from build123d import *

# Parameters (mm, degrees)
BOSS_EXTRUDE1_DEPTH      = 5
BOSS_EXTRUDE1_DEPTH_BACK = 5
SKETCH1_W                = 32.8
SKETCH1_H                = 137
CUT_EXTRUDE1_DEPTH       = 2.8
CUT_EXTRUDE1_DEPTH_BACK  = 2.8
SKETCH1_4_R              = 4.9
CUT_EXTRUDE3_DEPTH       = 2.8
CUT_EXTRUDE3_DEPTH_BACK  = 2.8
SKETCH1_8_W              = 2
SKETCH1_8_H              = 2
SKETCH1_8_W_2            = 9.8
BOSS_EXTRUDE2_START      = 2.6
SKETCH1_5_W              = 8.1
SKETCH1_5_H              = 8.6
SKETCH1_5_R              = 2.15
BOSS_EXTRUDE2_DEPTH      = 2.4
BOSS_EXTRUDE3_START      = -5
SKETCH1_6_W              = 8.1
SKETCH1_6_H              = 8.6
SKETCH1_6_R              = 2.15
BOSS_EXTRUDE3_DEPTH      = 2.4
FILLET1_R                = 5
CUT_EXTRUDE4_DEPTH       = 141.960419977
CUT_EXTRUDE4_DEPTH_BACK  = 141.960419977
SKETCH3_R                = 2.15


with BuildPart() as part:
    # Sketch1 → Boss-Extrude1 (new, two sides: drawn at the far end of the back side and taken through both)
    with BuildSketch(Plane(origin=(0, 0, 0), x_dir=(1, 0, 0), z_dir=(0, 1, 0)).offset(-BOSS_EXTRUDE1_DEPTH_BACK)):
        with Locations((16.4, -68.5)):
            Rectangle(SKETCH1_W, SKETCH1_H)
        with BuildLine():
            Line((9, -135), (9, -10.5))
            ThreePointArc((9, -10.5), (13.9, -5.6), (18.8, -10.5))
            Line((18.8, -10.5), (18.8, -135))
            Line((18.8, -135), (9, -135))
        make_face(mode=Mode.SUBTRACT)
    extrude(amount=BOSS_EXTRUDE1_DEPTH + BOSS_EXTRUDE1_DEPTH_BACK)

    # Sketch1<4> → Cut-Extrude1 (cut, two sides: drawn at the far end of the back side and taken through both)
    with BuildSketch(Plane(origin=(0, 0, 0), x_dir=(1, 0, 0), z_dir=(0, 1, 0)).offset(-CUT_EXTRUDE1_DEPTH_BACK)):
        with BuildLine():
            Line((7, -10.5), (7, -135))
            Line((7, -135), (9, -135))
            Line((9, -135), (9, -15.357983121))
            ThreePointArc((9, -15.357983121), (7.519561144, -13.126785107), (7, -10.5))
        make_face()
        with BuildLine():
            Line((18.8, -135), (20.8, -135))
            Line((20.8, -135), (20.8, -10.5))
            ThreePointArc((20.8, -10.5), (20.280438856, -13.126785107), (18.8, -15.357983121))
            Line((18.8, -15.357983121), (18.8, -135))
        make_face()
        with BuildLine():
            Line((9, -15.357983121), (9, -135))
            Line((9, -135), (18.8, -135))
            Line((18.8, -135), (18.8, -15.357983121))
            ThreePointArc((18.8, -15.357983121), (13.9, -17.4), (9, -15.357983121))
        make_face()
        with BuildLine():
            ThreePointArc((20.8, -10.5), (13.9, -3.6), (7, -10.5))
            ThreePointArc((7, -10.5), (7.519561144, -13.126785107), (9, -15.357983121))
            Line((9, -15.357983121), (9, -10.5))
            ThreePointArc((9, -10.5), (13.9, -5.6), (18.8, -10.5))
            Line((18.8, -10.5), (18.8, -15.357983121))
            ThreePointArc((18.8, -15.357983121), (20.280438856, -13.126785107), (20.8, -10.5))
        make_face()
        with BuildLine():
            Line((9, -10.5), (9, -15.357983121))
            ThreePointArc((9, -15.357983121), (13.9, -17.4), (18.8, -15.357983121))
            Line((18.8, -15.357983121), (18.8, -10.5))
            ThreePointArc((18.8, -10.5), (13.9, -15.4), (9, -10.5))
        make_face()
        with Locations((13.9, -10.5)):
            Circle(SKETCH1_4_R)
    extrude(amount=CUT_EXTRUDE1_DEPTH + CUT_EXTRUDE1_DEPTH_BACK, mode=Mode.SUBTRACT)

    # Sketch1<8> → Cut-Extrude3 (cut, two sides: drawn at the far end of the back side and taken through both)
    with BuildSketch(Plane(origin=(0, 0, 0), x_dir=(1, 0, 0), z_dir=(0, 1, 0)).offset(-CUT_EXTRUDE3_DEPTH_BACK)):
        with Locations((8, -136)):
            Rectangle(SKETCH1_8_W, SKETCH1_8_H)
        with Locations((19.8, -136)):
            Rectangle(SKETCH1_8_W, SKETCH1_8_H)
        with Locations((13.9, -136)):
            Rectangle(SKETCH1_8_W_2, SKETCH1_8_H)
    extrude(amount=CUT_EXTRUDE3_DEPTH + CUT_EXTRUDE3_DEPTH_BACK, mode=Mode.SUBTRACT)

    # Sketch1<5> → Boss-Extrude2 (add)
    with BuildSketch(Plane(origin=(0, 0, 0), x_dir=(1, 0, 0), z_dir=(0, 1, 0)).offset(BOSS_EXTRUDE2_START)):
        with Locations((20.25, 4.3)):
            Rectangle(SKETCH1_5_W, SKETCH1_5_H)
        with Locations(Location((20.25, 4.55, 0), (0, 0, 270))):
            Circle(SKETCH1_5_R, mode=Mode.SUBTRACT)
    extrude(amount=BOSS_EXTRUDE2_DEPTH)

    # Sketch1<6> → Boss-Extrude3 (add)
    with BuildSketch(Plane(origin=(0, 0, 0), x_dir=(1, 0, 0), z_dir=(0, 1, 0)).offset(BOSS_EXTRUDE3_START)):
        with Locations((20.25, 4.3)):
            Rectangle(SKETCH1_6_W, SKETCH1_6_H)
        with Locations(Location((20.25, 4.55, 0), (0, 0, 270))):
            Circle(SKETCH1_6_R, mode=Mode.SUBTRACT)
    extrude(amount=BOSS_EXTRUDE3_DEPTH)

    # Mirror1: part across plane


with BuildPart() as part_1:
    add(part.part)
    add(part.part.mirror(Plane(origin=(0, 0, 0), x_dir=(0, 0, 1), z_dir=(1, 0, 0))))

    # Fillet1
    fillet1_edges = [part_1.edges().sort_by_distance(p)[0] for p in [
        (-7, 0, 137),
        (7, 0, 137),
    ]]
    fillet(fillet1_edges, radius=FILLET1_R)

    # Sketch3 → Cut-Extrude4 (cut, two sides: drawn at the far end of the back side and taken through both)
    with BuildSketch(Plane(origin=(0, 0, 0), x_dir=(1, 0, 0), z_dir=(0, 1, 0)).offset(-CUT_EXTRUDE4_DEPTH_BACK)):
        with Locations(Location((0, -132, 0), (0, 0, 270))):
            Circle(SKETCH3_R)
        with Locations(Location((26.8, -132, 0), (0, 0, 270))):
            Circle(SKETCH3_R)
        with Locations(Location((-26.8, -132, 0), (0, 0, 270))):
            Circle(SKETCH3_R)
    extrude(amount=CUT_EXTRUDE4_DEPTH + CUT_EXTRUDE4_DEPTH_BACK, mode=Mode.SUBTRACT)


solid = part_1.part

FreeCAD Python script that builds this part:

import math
import FreeCAD as App
import Part
import Sketcher
from FreeCAD import Vector
Q = App.Units.Quantity


def edges_at(feature, points):
    """Names of the edges that pass closest to the given points."""
    edges = feature.Shape.Edges
    near = lambda p: min(range(len(edges)), key=lambda i: edges[i].distToShape(Part.Vertex(*p))[0])
    return sorted({f"Edge{near(p) + 1}" for p in points})

doc = App.newDocument("Part")
body = doc.addObject("PartDesign::Body", "Body")

sketch1 = body.newObject("Sketcher::SketchObject", "Sketch")
sketch1.AttachmentSupport = (doc.getObject("XZ_Plane"), [""])
sketch1.MapMode = "FlatFace"
sketch1.addGeometry(Part.LineSegment(Vector(0, 0, 0), Vector(0, 137, 0)), False)
sketch1.addGeometry(Part.LineSegment(Vector(0, 137, 0), Vector(32.8, 137, 0)), False)
sketch1.addGeometry(Part.LineSegment(Vector(32.8, 137, 0), Vector(32.8, 0, 0)), False)
sketch1.addGeometry(Part.LineSegment(Vector(32.8, 0, 0), Vector(0, 0, 0)), False)
sketch1.addGeometry(Part.LineSegment(Vector(18.8, 135, 0), Vector(9, 135, 0)), False)
sketch1.addGeometry(Part.LineSegment(Vector(9, 135, 0), Vector(9, 10.5, 0)), False)
sketch1.addGeometry(Part.ArcOfCircle(Part.Circle(Vector(13.9, 10.5, 0), Vector(0, 0, 1), 4.9), math.radians(180), math.radians(360)), False)
sketch1.addGeometry(Part.LineSegment(Vector(18.8, 10.5, 0), Vector(18.8, 135, 0)), False)
sketch1.addConstraint(Sketcher.Constraint("Coincident", 0, 2, 1, 1))
sketch1.addConstraint(Sketcher.Constraint("Coincident", 1, 2, 2, 1))
sketch1.addConstraint(Sketcher.Constraint("Coincident", 2, 2, 3, 1))
sketch1.addConstraint(Sketcher.Constraint("Coincident", 3, 2, 0, 1))
sketch1.addConstraint(Sketcher.Constraint("Coincident", 4, 2, 5, 1))
sketch1.addConstraint(Sketcher.Constraint("Tangent", 5, 2, 6, 1))
sketch1.addConstraint(Sketcher.Constraint("Tangent", 6, 2, 7, 1))
sketch1.addConstraint(Sketcher.Constraint("Coincident", 7, 2, 4, 1))
sketch1.addConstraint(Sketcher.Constraint("Vertical", 0))
sketch1.addConstraint(Sketcher.Constraint("Horizontal", 1))
sketch1.addConstraint(Sketcher.Constraint("Vertical", 2))
sketch1.addConstraint(Sketcher.Constraint("Horizontal", 3))
sketch1.addConstraint(Sketcher.Constraint("Horizontal", 4))
sketch1.addConstraint(Sketcher.Constraint("Vertical", 5))
sketch1.addConstraint(Sketcher.Constraint("Vertical", 7))
sketch1.addConstraint(Sketcher.Constraint("Coincident", 3, 2, -1, 1))
sketch1.addConstraint(Sketcher.Constraint("Radius", 6, Q("4.9 mm")))
sketch1.addConstraint(Sketcher.Constraint("DistanceY", 0, 1, 0, 2, Q("137 mm")))
sketch1.addConstraint(Sketcher.Constraint("DistanceX", 1, 1, 1, 2, Q("32.8 mm")))
sketch1.addConstraint(Sketcher.Constraint("DistanceY", 5, 2, 5, 1, Q("124.5 mm")))
sketch1.addConstraint(Sketcher.Constraint("DistanceX", -1, 1, 4, 2, Q("9 mm")))
sketch1.addConstraint(Sketcher.Constraint("DistanceY", -1, 1, 4, 2, Q("135 mm")))
pad1 = body.newObject("PartDesign::Pad", "Pad")
pad1.Profile = sketch1
pad1.Type = "TwoLengths"
pad1.Length = 5
pad1.Length2 = 5
pad1.Reversed = True

sketch2 = body.newObject("Sketcher::SketchObject", "Sketch001")
sketch2.AttachmentSupport = (doc.getObject("XZ_Plane"), [""])
sketch2.MapMode = "FlatFace"
sketch2.addGeometry(Part.LineSegment(Vector(21, 135, 0), Vector(21, 10, 0)), False)
sketch2.addGeometry(Part.ArcOfCircle(Part.Circle(Vector(14, 10, 0), Vector(0, 0, 1), 7), math.radians(180), math.radians(360)), False)
sketch2.addGeometry(Part.LineSegment(Vector(7, 10, 0), Vector(7, 135, 0)), False)
sketch2.addGeometry(Part.LineSegment(Vector(7, 135, 0), Vector(21, 135, 0)), False)
sketch2.addConstraint(Sketcher.Constraint("Tangent", 0, 2, 1, 2))
sketch2.addConstraint(Sketcher.Constraint("Tangent", 1, 1, 2, 1))
sketch2.addConstraint(Sketcher.Constraint("Coincident", 2, 2, 3, 1))
sketch2.addConstraint(Sketcher.Constraint("Coincident", 3, 2, 0, 1))
sketch2.addConstraint(Sketcher.Constraint("Vertical", 0))
sketch2.addConstraint(Sketcher.Constraint("Vertical", 2))
sketch2.addConstraint(Sketcher.Constraint("Horizontal", 3))
sketch2.addConstraint(Sketcher.Constraint("Radius", 1, Q("6.9 mm")))
sketch2.addConstraint(Sketcher.Constraint("DistanceY", 0, 2, 0, 1, Q("124.5 mm")))
sketch2.addConstraint(Sketcher.Constraint("DistanceX", -1, 1, 1, 1, Q("7 mm")))
sketch2.addConstraint(Sketcher.Constraint("DistanceY", -1, 1, 2, 2, Q("135 mm")))
pocket1 = body.newObject("PartDesign::Pocket", "Pocket")
pocket1.Profile = sketch2
pocket1.Type = "TwoLengths"
pocket1.Length = 2.8
pocket1.Length2 = 2.8

sketch3 = body.newObject("Sketcher::SketchObject", "Sketch002")
sketch3.AttachmentSupport = (doc.getObject("XZ_Plane"), [""])
sketch3.MapMode = "FlatFace"
sketch3.addGeometry(Part.LineSegment(Vector(7, 135, 0), Vector(7, 137, 0)), False)
sketch3.addGeometry(Part.LineSegment(Vector(7, 137, 0), Vector(20.8, 137, 0)), False)
sketch3.addGeometry(Part.LineSegment(Vector(20.8, 137, 0), Vector(20.8, 135, 0)), False)
sketch3.addGeometry(Part.LineSegment(Vector(20.8, 135, 0), Vector(7, 135, 0)), False)
sketch3.addConstraint(Sketcher.Constraint("Coincident", 0, 2, 1, 1))
sketch3.addConstraint(Sketcher.Constraint("Coincident", 1, 2, 2, 1))
sketch3.addConstraint(Sketcher.Constraint("Coincident", 2, 2, 3, 1))
sketch3.addConstraint(Sketcher.Constraint("Coincident", 3, 2, 0, 1))
sketch3.addConstraint(Sketcher.Constraint("Vertical", 0))
sketch3.addConstraint(Sketcher.Constraint("Horizontal", 1))
sketch3.addConstraint(Sketcher.Constraint("Vertical", 2))
sketch3.addConstraint(Sketcher.Constraint("Horizontal", 3))
sketch3.addConstraint(Sketcher.Constraint("DistanceY", 0, 1, 0, 2, Q("2 mm")))
sketch3.addConstraint(Sketcher.Constraint("DistanceX", 1, 1, 1, 2, Q("13.8 mm")))
sketch3.addConstraint(Sketcher.Constraint("DistanceX", -1, 1, 0, 2, Q("7 mm")))
sketch3.addConstraint(Sketcher.Constraint("DistanceY", -1, 1, 0, 2, Q("137 mm")))
pocket2 = body.newObject("PartDesign::Pocket", "Pocket001")
pocket2.Profile = sketch3
pocket2.Type = "TwoLengths"
pocket2.Length = 2.8
pocket2.Length2 = 2.8

sketch4 = body.newObject("Sketcher::SketchObject", "Sketch003")
sketch4.AttachmentSupport = (doc.getObject("XZ_Plane"), [""])
sketch4.MapMode = "FlatFace"
sketch4.AttachmentOffset = App.Placement(Vector(0, 0, -2.6), App.Rotation())
sketch4.addGeometry(Part.LineSegment(Vector(16.2, -8.6, 0), Vector(16.2, 0, 0)), False)
sketch4.addGeometry(Part.LineSegment(Vector(16.2, 0, 0), Vector(24.3, 0, 0)), False)
sketch4.addGeometry(Part.LineSegment(Vector(24.3, 0, 0), Vector(24.3, -8.6, 0)), False)
sketch4.addGeometry(Part.LineSegment(Vector(24.3, -8.6, 0), Vector(16.2, -8.6, 0)), False)
sketch4.addGeometry(Part.Circle(Vector(20.2, -4.5, 0), Vector(0, 0, 1), 2.1), False)
sketch4.addConstraint(Sketcher.Constraint("Coincident", 0, 2, 1, 1))
sketch4.addConstraint(Sketcher.Constraint("Coincident", 1, 2, 2, 1))
sketch4.addConstraint(Sketcher.Constraint("Coincident", 2, 2, 3, 1))
sketch4.addConstraint(Sketcher.Constraint("Coincident", 3, 2, 0, 1))
sketch4.addConstraint(Sketcher.Constraint("Vertical", 0))
sketch4.addConstraint(Sketcher.Constraint("Horizontal", 1))
sketch4.addConstraint(Sketcher.Constraint("Vertical", 2))
sketch4.addConstraint(Sketcher.Constraint("Horizontal", 3))
sketch4.addConstraint(Sketcher.Constraint("PointOnObject", 0, 2, -1))
sketch4.addConstraint(Sketcher.Constraint("Diameter", 4, Q("4.3 mm")))
sketch4.addConstraint(Sketcher.Constraint("DistanceX", 1, 1, 1, 2, Q("8.1 mm")))
sketch4.addConstraint(Sketcher.Constraint("DistanceY", 0, 1, 0, 2, Q("8.6 mm")))
sketch4.addConstraint(Sketcher.Constraint("DistanceX", -1, 1, 0, 2, Q("16.2 mm")))
sketch4.addConstraint(Sketcher.Constraint("DistanceX", -1, 1, 4, 3, Q("20.25 mm")))
sketch4.addConstraint(Sketcher.Constraint("DistanceY", 4, 3, -1, 1, Q("4.55 mm")))
pad2 = body.newObject("PartDesign::Pad", "Pad001")
pad2.Profile = sketch4
pad2.Length = 2.4
pad2.Reversed = True

sketch5 = body.newObject("Sketcher::SketchObject", "Sketch004")
sketch5.AttachmentSupport = (doc.getObject("XZ_Plane"), [""])
sketch5.MapMode = "FlatFace"
sketch5.AttachmentOffset = App.Placement(Vector(0, 0, 5), App.Rotation())
sketch5.addGeometry(Part.LineSegment(Vector(16.2, -8.6, 0), Vector(16.2, 0, 0)), False)
sketch5.addGeometry(Part.LineSegment(Vector(16.2, 0, 0), Vector(24.3, 0, 0)), False)
sketch5.addGeometry(Part.LineSegment(Vector(24.3, 0, 0), Vector(24.3, -8.6, 0)), False)
sketch5.addGeometry(Part.LineSegment(Vector(24.3, -8.6, 0), Vector(16.2, -8.6, 0)), False)
sketch5.addGeometry(Part.Circle(Vector(20.2, -4.5, 0), Vector(0, 0, 1), 2.1), False)
sketch5.addConstraint(Sketcher.Constraint("Coincident", 0, 2, 1, 1))
sketch5.addConstraint(Sketcher.Constraint("Coincident", 1, 2, 2, 1))
sketch5.addConstraint(Sketcher.Constraint("Coincident", 2, 2, 3, 1))
sketch5.addConstraint(Sketcher.Constraint("Coincident", 3, 2, 0, 1))
sketch5.addConstraint(Sketcher.Constraint("Vertical", 0))
sketch5.addConstraint(Sketcher.Constraint("Horizontal", 1))
sketch5.addConstraint(Sketcher.Constraint("Vertical", 2))
sketch5.addConstraint(Sketcher.Constraint("Horizontal", 3))
sketch5.addConstraint(Sketcher.Constraint("PointOnObject", 0, 2, -1))
sketch5.addConstraint(Sketcher.Constraint("Diameter", 4, Q("4.3 mm")))
sketch5.addConstraint(Sketcher.Constraint("DistanceX", 1, 1, 1, 2, Q("8.1 mm")))
sketch5.addConstraint(Sketcher.Constraint("DistanceY", 0, 1, 0, 2, Q("8.6 mm")))
sketch5.addConstraint(Sketcher.Constraint("DistanceX", -1, 1, 0, 2, Q("16.2 mm")))
sketch5.addConstraint(Sketcher.Constraint("DistanceX", -1, 1, 4, 3, Q("20.25 mm")))
sketch5.addConstraint(Sketcher.Constraint("DistanceY", 4, 3, -1, 1, Q("4.55 mm")))
pad3 = body.newObject("PartDesign::Pad", "Pad002")
pad3.Profile = sketch5
pad3.Length = 2.4
pad3.Reversed = True
body2 = doc.addObject("PartDesign::Body", "Body001")
doc.recompute()

body2.BaseFeature = body
doc.recompute()

mirroring = doc.addObject("Part::Mirroring", "Mirroring")
mirroring.Source = body
mirroring.Base = Vector(0, 0, 0)
mirroring.Normal = Vector(1, 0, 0)
body3 = doc.addObject("PartDesign::Body", "Body002")
body3.BaseFeature = mirroring
boolean = body2.newObject("PartDesign::Boolean", "Boolean")
boolean.Type = "Fuse"
boolean.addObjects([body3])
doc.recompute()

fillet = body2.newObject("PartDesign::Fillet", "Fillet")
fillet.Base = (boolean, edges_at(boolean, [(-7, 0, 137), (7, 0, 137)]))
fillet.Radius = 5

sketch6 = body2.newObject("Sketcher::SketchObject", "Sketch005")
sketch6.AttachmentSupport = (doc.getObject("XZ_Plane001"), [""])
sketch6.MapMode = "FlatFace"
sketch6.addGeometry(Part.Circle(Vector(0, 132, 0), Vector(0, 0, 1), 2.1), False)
sketch6.addGeometry(Part.Circle(Vector(26.8, 132, 0), Vector(0, 0, 1), 2.1), False)
sketch6.addGeometry(Part.Circle(Vector(-26.8, 132, 0), Vector(0, 0, 1), 2.1), False)
sketch6.addConstraint(Sketcher.Constraint("Equal", 0, 1))
sketch6.addConstraint(Sketcher.Constraint("Equal", 1, 2))
sketch6.addConstraint(Sketcher.Constraint("Symmetric", 1, 3, 2, 3, -2))
sketch6.addConstraint(Sketcher.Constraint("PointOnObject", 0, 3, -2))
sketch6.addConstraint(Sketcher.Constraint("Horizontal", 0, 3, 1, 3))
sketch6.addConstraint(Sketcher.Constraint("Diameter", 0, Q("4.3 mm")))
sketch6.addConstraint(Sketcher.Constraint("DistanceY", -1, 1, 0, 3, Q("132 mm")))
sketch6.addConstraint(Sketcher.Constraint("DistanceX", -1, 1, 1, 3, Q("26.8 mm")))
pocket3 = body2.newObject("PartDesign::Pocket", "Pocket002")
pocket3.Profile = sketch6
pocket3.Type = "ThroughAll"
pocket3.Midplane = True
mirroring.Visibility = False

doc.recompute()
